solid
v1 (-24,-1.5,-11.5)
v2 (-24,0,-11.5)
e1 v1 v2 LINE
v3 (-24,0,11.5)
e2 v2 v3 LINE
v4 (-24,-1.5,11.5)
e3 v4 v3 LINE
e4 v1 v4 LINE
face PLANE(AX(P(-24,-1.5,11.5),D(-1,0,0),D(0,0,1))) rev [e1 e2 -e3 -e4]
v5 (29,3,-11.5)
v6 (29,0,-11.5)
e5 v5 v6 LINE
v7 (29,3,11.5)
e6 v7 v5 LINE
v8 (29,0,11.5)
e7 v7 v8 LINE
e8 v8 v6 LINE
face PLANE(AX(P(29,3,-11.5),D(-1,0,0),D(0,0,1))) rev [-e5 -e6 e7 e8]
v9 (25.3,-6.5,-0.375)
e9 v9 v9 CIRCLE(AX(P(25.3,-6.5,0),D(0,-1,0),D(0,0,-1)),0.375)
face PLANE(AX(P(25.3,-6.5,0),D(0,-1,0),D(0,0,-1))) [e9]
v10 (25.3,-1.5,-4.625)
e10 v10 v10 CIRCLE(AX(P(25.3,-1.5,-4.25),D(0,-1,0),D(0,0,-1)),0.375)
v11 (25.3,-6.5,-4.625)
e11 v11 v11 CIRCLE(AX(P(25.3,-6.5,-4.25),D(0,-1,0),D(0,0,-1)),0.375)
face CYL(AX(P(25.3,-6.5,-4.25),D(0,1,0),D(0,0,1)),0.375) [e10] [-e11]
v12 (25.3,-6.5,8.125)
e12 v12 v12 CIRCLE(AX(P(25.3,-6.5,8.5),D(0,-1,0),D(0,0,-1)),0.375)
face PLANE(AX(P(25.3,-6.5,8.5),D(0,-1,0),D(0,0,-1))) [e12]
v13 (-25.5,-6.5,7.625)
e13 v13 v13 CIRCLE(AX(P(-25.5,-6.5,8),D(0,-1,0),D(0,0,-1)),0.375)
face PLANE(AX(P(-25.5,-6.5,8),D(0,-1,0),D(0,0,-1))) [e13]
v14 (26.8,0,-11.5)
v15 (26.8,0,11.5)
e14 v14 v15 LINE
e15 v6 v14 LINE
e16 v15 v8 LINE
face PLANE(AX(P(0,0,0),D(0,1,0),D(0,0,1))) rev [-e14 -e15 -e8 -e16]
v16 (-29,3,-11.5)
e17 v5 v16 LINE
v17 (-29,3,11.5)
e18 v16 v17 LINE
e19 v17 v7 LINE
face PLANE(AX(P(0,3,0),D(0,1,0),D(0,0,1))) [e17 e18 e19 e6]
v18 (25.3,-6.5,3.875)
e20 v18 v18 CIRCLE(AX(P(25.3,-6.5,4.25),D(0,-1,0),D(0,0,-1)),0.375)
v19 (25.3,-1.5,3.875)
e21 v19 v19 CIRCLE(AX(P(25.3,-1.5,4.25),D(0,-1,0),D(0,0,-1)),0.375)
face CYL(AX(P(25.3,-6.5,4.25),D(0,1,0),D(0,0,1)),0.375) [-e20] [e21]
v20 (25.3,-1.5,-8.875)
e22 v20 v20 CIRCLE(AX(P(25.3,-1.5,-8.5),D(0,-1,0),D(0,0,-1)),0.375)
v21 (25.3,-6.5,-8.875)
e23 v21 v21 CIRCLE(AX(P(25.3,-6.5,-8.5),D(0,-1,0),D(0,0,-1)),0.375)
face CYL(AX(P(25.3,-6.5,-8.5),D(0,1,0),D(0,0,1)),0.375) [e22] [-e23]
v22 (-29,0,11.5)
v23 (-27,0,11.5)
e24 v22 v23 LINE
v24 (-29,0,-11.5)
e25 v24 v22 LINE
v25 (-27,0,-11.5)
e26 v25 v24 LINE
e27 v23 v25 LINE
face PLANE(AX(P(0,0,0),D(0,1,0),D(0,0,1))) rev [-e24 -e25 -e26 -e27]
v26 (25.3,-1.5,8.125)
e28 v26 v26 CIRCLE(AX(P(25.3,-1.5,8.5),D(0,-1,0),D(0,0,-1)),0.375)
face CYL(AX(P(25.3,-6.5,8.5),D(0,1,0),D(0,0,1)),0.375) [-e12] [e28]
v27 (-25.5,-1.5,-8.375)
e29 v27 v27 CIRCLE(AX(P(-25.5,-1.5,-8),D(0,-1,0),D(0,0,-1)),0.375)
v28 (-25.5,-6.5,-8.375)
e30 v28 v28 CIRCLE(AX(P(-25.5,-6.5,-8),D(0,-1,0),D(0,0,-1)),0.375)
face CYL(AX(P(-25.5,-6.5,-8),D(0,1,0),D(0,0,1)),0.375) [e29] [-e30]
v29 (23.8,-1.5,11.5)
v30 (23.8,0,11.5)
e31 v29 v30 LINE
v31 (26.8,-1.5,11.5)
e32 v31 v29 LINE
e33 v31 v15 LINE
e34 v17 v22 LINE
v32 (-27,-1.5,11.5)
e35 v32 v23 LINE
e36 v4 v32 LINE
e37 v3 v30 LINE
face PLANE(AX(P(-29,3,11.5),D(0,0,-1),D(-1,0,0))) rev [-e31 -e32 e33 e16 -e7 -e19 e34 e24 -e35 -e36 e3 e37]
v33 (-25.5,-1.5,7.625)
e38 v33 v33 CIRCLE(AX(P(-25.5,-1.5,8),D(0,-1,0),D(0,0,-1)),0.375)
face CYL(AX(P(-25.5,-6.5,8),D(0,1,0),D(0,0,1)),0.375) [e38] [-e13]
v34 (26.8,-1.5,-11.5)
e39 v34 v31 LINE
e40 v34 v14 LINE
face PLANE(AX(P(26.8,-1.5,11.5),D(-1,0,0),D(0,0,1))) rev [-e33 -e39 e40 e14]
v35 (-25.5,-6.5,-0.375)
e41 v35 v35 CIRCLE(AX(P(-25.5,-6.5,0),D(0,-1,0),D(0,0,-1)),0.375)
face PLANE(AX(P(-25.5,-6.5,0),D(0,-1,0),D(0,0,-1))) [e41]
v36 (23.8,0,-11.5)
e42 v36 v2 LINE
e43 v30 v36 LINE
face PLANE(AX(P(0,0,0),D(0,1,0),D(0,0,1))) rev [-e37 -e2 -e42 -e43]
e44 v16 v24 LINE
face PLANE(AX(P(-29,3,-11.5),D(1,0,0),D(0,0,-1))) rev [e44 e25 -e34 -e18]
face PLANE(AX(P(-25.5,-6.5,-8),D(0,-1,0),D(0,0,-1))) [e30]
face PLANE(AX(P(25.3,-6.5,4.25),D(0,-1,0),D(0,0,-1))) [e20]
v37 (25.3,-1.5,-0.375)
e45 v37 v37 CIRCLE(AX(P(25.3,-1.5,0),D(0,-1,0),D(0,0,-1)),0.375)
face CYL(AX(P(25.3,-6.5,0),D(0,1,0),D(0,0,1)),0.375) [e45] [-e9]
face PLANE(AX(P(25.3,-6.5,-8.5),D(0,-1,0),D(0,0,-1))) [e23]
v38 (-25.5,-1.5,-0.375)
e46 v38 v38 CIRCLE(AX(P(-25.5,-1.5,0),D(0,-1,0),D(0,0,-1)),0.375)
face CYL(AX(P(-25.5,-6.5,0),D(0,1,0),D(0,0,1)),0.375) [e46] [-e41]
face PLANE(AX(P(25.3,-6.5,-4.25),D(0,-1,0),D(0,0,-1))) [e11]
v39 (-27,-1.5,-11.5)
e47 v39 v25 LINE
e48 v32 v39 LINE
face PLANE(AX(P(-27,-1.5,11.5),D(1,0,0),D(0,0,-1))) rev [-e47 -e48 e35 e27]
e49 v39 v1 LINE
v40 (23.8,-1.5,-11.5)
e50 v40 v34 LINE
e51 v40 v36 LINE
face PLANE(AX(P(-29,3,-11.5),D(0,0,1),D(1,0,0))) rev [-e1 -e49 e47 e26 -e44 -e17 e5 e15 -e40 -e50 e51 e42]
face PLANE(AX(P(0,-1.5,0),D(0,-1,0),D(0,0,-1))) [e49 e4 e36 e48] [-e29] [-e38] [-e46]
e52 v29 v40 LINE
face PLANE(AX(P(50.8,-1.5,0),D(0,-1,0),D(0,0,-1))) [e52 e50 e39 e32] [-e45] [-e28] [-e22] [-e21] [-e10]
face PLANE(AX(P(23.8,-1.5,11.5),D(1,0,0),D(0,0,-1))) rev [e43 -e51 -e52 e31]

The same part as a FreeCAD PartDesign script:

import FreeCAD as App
import Part
import Sketcher

doc = App.newDocument("Part")
params = doc.addObject("Spreadsheet::Sheet", "Params")
for row, (alias, value) in enumerate([
    ("sketch1_width", "58 mm"),
    ("sketch1_height", "23 mm"),
    ("pad1_length", "3 mm"),
    ("sketch2_width", "3 mm"),
    ("sketch2_height", "23 mm"),
    ("pad2_length", "1.5 mm"),
    ("sketch3_diameter", "0.75 mm"),
    ("pad3_length", "5 mm"),
    ("linearpattern_pitch", "50.8 mm"),
    ("sketch4_diameter", "0.75 mm"),
    ("pad4_length", "5 mm"),
], start=1):
    params.set(f"A{row}", alias)
    params.set(f"B{row}", "=" + value)
    params.setAlias(f"B{row}", alias)

body = doc.addObject("PartDesign::Body", "Body")

# Sketch on XZ plane
sketch1 = body.newObject("Sketcher::SketchObject", "Sketch")
sketch1.AttachmentSupport = (doc.getObject("XZ_Plane"), [""])
sketch1.MapMode = "FlatFace"
sketch1.addGeometry([
    Part.LineSegment(App.Vector(-29, -12, 0), App.Vector(-29, 12, 0)),
    Part.LineSegment(App.Vector(-29, 12, 0), App.Vector(29, 12, 0)),
    Part.LineSegment(App.Vector(29, 12, 0), App.Vector(29, -12, 0)),
    Part.LineSegment(App.Vector(29, -12, 0), App.Vector(-29, -12, 0)),
], False)
sketch1.addConstraint([
    Sketcher.Constraint("Coincident", 0, 2, 1, 1),
    Sketcher.Constraint("Coincident", 1, 2, 2, 1),
    Sketcher.Constraint("Coincident", 2, 2, 3, 1),
    Sketcher.Constraint("Coincident", 3, 2, 0, 1),
    Sketcher.Constraint("Vertical", 0),
    Sketcher.Constraint("Horizontal", 1),
    Sketcher.Constraint("Vertical", 2),
    Sketcher.Constraint("Horizontal", 3),
    Sketcher.Constraint("Symmetric", 0, 2, 2, 2, -1, 1),
    Sketcher.Constraint("DistanceX", 1, 1, 1, 2, 58.0),
    Sketcher.Constraint("DistanceY", 0, 1, 0, 2, 23.0),
])
sketch1.setExpression("Constraints[9]", "Params.sketch1_width")
sketch1.setExpression("Constraints[10]", "Params.sketch1_height")
pad1 = body.newObject("PartDesign::Pad", "Pad")
pad1.Profile = sketch1
pad1.setExpression("Length", "Params.pad1_length")
pad1.Reversed = True

# Sketch on XZ plane
sketch2 = body.newObject("Sketcher::SketchObject", "Sketch001")
sketch2.AttachmentSupport = (doc.getObject("XZ_Plane"), [""])
sketch2.MapMode = "FlatFace"
sketch2.addGeometry([
    Part.LineSegment(App.Vector(-27, 11.5, 0), App.Vector(-27, -11.5, 0)),
    Part.LineSegment(App.Vector(-27, -11.5, 0), App.Vector(-24, -11.5, 0)),
    Part.LineSegment(App.Vector(-24, -11.5, 0), App.Vector(-24, 11.5, 0)),
    Part.LineSegment(App.Vector(-24, 11.5, 0), App.Vector(-27, 11.5, 0)),
], False)
sketch2.addConstraint([
    Sketcher.Constraint("Coincident", 0, 2, 1, 1),
    Sketcher.Constraint("Coincident", 1, 2, 2, 1),
    Sketcher.Constraint("Coincident", 2, 2, 3, 1),
    Sketcher.Constraint("Coincident", 3, 2, 0, 1),
    Sketcher.Constraint("Vertical", 0),
    Sketcher.Constraint("Horizontal", 1),
    Sketcher.Constraint("Vertical", 2),
    Sketcher.Constraint("Horizontal", 3),
    Sketcher.Constraint("DistanceX", 1, 1, 1, 2, 3.0),
    Sketcher.Constraint("DistanceY", 0, 2, 0, 1, 23.0),
    Sketcher.Constraint("DistanceX", 0, 2, -1, 1, 27.0),
    Sketcher.Constraint("DistanceY", 0, 2, -1, 1, 11.5),
])
sketch2.setExpression("Constraints[8]", "Params.sketch2_width")
sketch2.setExpression("Constraints[9]", "Params.sketch2_height")
pad2 = body.newObject("PartDesign::Pad", "Pad001")
pad2.Profile = sketch2
pad2.setExpression("Length", "Params.pad2_length")

# Sketch on XZ plane
sketch3 = body.newObject("Sketcher::SketchObject", "Sketch002")
sketch3.AttachmentSupport = (doc.getObject("XZ_Plane"), [""])
sketch3.MapMode = "FlatFace"
sketch3.AttachmentOffset = App.Placement(App.Vector(0, 0, 1.5), App.Rotation())
sketch3.addGeometry([
    Part.Circle(App.Vector(-25.5, 8, 0), App.Vector(0, 0, 1), 0.38),
    Part.Circle(App.Vector(-25.5, 0, 0), App.Vector(0, 0, 1), 0.38),
    Part.Circle(App.Vector(-25.5, -8, 0), App.Vector(0, 0, 1), 0.38),
], False)
sketch3.addConstraint([
    Sketcher.Constraint("Equal", 0, 1),
    Sketcher.Constraint("Equal", 1, 2),
    Sketcher.Constraint("Symmetric", 0, 3, 2, 3, -1),
    Sketcher.Constraint("PointOnObject", 1, 3, -1),
    Sketcher.Constraint("Vertical", 0, 3, 1, 3),
    Sketcher.Constraint("Diameter", 0, 0.75),
    Sketcher.Constraint("DistanceY", -1, 1, 0, 3, 8.0),
    Sketcher.Constraint("DistanceX", 0, 3, -1, 1, 25.5),
])
sketch3.setExpression("Constraints[5]", "Params.sketch3_diameter")
pad3 = body.newObject("PartDesign::Pad", "Pad002")
pad3.Profile = sketch3
pad3.setExpression("Length", "Params.pad3_length")
doc.recompute()

linearpattern = body.newObject("PartDesign::LinearPattern", "LinearPattern")
linearpattern.Originals = [pad2]
linearpattern.Direction = (doc.getObject("X_Axis"), [""])
linearpattern.Mode = "offset"
linearpattern.setExpression("Offset", "Params.linearpattern_pitch")
linearpattern.Occurrences = 2
body.Tip = linearpattern

# Sketch on XZ plane
sketch4 = body.newObject("Sketcher::SketchObject", "Sketch003")
sketch4.AttachmentSupport = (doc.getObject("XZ_Plane"), [""])
sketch4.MapMode = "FlatFace"
sketch4.AttachmentOffset = App.Placement(App.Vector(0, 0, 1.5), App.Rotation())
sketch4.addGeometry([
    Part.Circle(App.Vector(25.3, 8.5, 0), App.Vector(0, 0, 1), 0.38),  # 0
    Part.Circle(App.Vector(25.3, 4.25, 0), App.Vector(0, 0, 1), 0.38),  # 1
    Part.Circle(App.Vector(25.3, 0, 0), App.Vector(0, 0, 1), 0.38),  # 2
    Part.Circle(App.Vector(25.3, -4.25, 0), App.Vector(0, 0, 1), 0.38),  # 3
    Part.Circle(App.Vector(25.3, -8.5, 0), App.Vector(0, 0, 1), 0.38),  # 4
], False)
sketch4.addConstraint([
    Sketcher.Constraint("Equal", 0, 1),
    Sketcher.Constraint("Equal", 1, 2),
    Sketcher.Constraint("Equal", 2, 3),
    Sketcher.Constraint("Equal", 3, 4),
    Sketcher.Constraint("Symmetric", 1, 3, 3, 3, -1),
    Sketcher.Constraint("Symmetric", 0, 3, 4, 3, -1),
    Sketcher.Constraint("PointOnObject", 2, 3, -1),
    Sketcher.Constraint("Vertical", 0, 3, 1, 3),
    Sketcher.Constraint("Vertical", 1, 3, 2, 3),
    Sketcher.Constraint("Diameter", 0, 0.75),
    Sketcher.Constraint("DistanceY", 4, 3, 0, 3, 17.0),
    Sketcher.Constraint("DistanceX", -1, 1, 0, 3, 25.3),
    Sketcher.Constraint("DistanceY", 3, 3, 1, 3, 8.5),
])
sketch4.setExpression("Constraints[9]", "Params.sketch4_diameter")
pad4 = body.newObject("PartDesign::Pad", "Pad003")
pad4.Profile = sketch4
pad4.setExpression("Length", "Params.pad4_length")

doc.recompute()
